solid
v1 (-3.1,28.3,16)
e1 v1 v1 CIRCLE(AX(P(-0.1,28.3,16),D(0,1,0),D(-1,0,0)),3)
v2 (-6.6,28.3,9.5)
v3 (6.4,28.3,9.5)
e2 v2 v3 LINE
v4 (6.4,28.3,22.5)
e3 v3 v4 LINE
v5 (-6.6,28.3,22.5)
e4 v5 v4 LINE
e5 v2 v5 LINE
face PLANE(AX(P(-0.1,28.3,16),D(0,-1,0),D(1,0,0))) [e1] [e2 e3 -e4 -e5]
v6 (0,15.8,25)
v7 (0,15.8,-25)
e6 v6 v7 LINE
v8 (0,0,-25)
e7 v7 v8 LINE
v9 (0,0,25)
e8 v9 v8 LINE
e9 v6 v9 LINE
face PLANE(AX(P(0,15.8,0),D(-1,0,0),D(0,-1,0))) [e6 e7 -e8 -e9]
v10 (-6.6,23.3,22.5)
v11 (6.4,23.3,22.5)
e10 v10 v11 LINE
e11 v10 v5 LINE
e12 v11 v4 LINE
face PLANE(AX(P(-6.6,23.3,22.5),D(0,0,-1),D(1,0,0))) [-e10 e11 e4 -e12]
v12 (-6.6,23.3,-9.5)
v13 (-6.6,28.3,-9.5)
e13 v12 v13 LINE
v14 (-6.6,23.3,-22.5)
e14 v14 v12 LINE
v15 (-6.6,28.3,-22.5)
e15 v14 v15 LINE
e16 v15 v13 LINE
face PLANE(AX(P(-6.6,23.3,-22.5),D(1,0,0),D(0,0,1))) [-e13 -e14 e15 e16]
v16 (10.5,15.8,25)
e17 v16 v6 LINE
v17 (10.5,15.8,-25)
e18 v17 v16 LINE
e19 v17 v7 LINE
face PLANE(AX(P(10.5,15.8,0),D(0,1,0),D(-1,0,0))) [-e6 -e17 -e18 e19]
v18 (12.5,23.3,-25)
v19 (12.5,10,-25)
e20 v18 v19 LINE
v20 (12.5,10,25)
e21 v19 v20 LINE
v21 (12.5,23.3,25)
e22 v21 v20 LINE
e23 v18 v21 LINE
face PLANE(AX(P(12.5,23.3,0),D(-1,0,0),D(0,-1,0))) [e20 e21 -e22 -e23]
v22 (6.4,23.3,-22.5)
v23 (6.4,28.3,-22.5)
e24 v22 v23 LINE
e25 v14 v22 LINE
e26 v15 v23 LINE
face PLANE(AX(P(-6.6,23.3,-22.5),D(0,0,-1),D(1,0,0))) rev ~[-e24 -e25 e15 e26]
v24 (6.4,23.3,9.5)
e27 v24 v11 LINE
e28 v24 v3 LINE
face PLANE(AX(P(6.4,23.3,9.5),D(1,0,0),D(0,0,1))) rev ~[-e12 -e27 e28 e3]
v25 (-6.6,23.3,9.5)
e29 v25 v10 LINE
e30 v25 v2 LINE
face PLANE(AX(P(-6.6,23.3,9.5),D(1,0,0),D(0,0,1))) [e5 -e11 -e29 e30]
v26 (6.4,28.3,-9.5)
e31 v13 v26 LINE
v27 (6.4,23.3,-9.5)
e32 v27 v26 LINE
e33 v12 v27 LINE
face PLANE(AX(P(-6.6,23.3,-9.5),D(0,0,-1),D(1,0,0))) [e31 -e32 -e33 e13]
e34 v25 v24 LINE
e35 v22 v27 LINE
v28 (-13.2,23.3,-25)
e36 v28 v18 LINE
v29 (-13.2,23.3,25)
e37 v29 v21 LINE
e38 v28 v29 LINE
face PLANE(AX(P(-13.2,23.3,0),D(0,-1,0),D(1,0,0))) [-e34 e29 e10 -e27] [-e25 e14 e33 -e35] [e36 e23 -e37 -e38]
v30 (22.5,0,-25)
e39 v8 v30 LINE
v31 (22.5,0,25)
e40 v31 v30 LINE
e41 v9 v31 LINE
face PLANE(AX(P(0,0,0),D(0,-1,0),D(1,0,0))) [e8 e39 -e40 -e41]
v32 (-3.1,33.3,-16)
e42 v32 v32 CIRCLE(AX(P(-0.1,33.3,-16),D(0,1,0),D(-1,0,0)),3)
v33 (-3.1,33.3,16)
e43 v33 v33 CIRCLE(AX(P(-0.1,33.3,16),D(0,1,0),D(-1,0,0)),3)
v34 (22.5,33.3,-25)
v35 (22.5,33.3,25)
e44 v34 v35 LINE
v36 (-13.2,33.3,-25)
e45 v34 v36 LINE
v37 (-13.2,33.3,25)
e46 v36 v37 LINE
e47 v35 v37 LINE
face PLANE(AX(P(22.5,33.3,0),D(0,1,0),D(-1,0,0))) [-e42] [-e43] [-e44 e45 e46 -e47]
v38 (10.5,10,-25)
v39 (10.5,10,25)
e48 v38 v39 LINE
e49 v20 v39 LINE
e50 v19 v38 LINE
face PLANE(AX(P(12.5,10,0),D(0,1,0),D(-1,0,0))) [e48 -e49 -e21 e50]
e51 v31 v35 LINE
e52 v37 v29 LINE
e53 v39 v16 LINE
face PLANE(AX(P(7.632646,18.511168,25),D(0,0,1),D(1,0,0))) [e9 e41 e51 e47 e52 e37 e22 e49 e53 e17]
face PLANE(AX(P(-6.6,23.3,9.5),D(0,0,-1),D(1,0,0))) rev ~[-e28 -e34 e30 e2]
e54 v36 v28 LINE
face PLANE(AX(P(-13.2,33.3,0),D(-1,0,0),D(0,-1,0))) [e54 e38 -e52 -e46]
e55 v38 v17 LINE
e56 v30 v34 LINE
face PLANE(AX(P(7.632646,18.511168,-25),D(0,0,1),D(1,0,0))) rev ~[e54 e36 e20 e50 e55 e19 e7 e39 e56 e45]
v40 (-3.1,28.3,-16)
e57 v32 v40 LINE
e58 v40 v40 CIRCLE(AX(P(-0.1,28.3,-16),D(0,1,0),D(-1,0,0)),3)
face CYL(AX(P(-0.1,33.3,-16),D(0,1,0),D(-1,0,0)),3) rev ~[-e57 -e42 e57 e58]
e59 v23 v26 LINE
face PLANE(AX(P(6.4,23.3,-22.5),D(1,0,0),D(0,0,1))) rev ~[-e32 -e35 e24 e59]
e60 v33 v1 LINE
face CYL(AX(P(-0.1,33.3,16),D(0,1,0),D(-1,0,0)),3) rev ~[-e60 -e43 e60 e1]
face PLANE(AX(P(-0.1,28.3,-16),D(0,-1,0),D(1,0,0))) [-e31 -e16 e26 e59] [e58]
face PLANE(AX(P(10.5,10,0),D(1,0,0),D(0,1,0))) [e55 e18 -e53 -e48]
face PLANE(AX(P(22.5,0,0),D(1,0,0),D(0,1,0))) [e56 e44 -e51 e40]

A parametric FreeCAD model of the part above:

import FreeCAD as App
import Part
import Sketcher


def add_polygon(sketch, points):
    """Adds a closed chain of lines whose ends are joined by coincident constraints."""
    first, n = sketch.GeometryCount, len(points)
    for a, b in zip(points, points[1:] + points[:1]):
        sketch.addGeometry(Part.LineSegment(App.Vector(*a, 0), App.Vector(*b, 0)), False)
    for i in range(n):
        sketch.addConstraint(Sketcher.Constraint("Coincident", first + i, 2, first + (i + 1) % n, 1))

doc = App.newDocument("Part")
params = doc.addObject("Spreadsheet::Sheet", "Params")
for row, (alias, value) in enumerate([
    ("sketch1_width", "2 mm"),
    ("sketch1_height", "10 mm"),
    ("sketch1_width2", "35.7 mm"),
    ("sketch1_width3", "25.7 mm"),
    ("sketch1_width4", "10.5 mm"),
    ("pad1_length", "50 mm"),
    ("sketch2_diameter", "6 mm"),
    ("pocket1_length", "10 mm"),
    ("sketch3_width", "13 mm"),
    ("pocket2_length", "5 mm"),
], start=1):
    params.set(f"A{row}", alias)
    params.set(f"B{row}", "=" + value)
    params.setAlias(f"B{row}", alias)

body = doc.addObject("PartDesign::Body", "Body")

sketch1 = body.newObject("Sketcher::SketchObject", "Sketch")
sketch1.AttachmentSupport = (doc.getObject("XY_Plane"), [""])
sketch1.MapMode = "FlatFace"
add_polygon(sketch1, [(22.5, 0), (22.5, 33.3), (-13.2, 33.3), (-13.2, 23.3), (12.5, 23.3), (12.5, 10), (10.5, 10), (10.5, 15.8), (0, 15.8), (0, 0)])
sketch1.addConstraint([
    Sketcher.Constraint("Vertical", 0),
    Sketcher.Constraint("Horizontal", 1),
    Sketcher.Constraint("Vertical", 2),
    Sketcher.Constraint("Horizontal", 3),
    Sketcher.Constraint("Vertical", 4),
    Sketcher.Constraint("Horizontal", 5),
    Sketcher.Constraint("Vertical", 6),
    Sketcher.Constraint("Horizontal", 7),
    Sketcher.Constraint("Vertical", 8),
    Sketcher.Constraint("Horizontal", 9),
    Sketcher.Constraint("Coincident", 8, 2, -1, 1),
    Sketcher.Constraint("DistanceX", 5, 2, 5, 1, 2.0),
    Sketcher.Constraint("DistanceY", 2, 2, 2, 1, 10.0),
    Sketcher.Constraint("DistanceX", 1, 2, 1, 1, 35.7),
    Sketcher.Constraint("DistanceX", 3, 1, 3, 2, 25.7),
    Sketcher.Constraint("DistanceX", 7, 2, 7, 1, 10.5),
    Sketcher.Constraint("DistanceY", 0, 1, 0, 2, 33.3),
    Sketcher.Constraint("DistanceY", 4, 2, 4, 1, 13.3),
    Sketcher.Constraint("DistanceY", 6, 1, 6, 2, 5.8),
])
sketch1.setExpression("Constraints[21]", "Params.sketch1_width")
sketch1.setExpression("Constraints[22]", "Params.sketch1_height")
sketch1.setExpression("Constraints[23]", "Params.sketch1_width2")
sketch1.setExpression("Constraints[24]", "Params.sketch1_width3")
sketch1.setExpression("Constraints[25]", "Params.sketch1_width4")
pad1 = body.newObject("PartDesign::Pad", "Pad")
pad1.Profile = sketch1
pad1.setExpression("Length", "Params.pad1_length")
pad1.Midplane = True

sketch2 = body.newObject("Sketcher::SketchObject", "Sketch001")
sketch2.AttachmentSupport = (doc.getObject("XZ_Plane"), [""])
sketch2.MapMode = "FlatFace"
sketch2.AttachmentOffset = App.Placement(App.Vector(0, 0, -33.3), App.Rotation())
sketch2.addGeometry([
    Part.Circle(App.Vector(-0.1, -16, 0), App.Vector(0, 0, 1), 3),
    Part.Circle(App.Vector(-0.1, 16, 0), App.Vector(0, 0, 1), 3),
], False)
sketch2.addConstraint([
    Sketcher.Constraint("Equal", 0, 1),
    Sketcher.Constraint("Symmetric", 0, 3, 1, 3, -1),
    Sketcher.Constraint("Diameter", 0, 6.0),
    Sketcher.Constraint("DistanceY", 0, 3, -1, 1, 16.0),
    Sketcher.Constraint("DistanceX", 0, 3, -1, 1, 0.1),
])
sketch2.setExpression("Constraints[2]", "Params.sketch2_diameter")
pocket1 = body.newObject("PartDesign::Pocket", "Pocket")
pocket1.Profile = sketch2
pocket1.setExpression("Length", "Params.pocket1_length")
pocket1.Reversed = True

sketch3 = body.newObject("Sketcher::SketchObject", "Sketch002")
sketch3.AttachmentSupport = (doc.getObject("XZ_Plane"), [""])
sketch3.MapMode = "FlatFace"
sketch3.AttachmentOffset = App.Placement(App.Vector(0, 0, -23.3), App.Rotation())
add_polygon(sketch3, [(-6.6, 22.5), (-6.6, 9.5), (6.4, 9.5), (6.4, 22.5)])
add_polygon(sketch3, [(-6.6, -9.5), (-6.6, -22.5), (6.4, -22.5), (6.4, -9.5)])
sketch3.addConstraint([
    Sketcher.Constraint("Vertical", 0),
    Sketcher.Constraint("Horizontal", 1),
    Sketcher.Constraint("Vertical", 2),
    Sketcher.Constraint("Horizontal", 3),
    Sketcher.Constraint("Vertical", 4),
    Sketcher.Constraint("Horizontal", 5),
    Sketcher.Constraint("Vertical", 6),
    Sketcher.Constraint("Horizontal", 7),
    Sketcher.Constraint("Symmetric", 3, 2, 4, 2, -1),
    Sketcher.Constraint("Symmetric", 1, 2, 6, 2, -1),
    Sketcher.Constraint("Equal", 7, 0),
    Sketcher.Constraint("DistanceX", 1, 1, 1, 2, 13.0),
    Sketcher.Constraint("DistanceY", 4, 2, 0, 2, 32.0),
    Sketcher.Constraint("DistanceX", 0, 2, -1, 1, 6.6),
])
sketch3.setExpression("Constraints[19]", "Params.sketch3_width")
pocket2 = body.newObject("PartDesign::Pocket", "Pocket001")
pocket2.Profile = sketch3
pocket2.setExpression("Length", "Params.pocket2_length")

doc.recompute()
